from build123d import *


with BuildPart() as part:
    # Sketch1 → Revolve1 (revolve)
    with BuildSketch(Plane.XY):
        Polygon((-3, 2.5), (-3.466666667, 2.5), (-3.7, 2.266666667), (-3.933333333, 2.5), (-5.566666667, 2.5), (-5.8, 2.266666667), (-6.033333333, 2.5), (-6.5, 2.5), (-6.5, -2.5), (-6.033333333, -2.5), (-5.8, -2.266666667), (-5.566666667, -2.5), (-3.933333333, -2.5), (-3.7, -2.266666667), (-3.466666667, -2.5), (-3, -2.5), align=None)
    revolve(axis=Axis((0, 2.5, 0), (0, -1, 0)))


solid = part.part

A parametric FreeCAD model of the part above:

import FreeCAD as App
import Part
import Sketcher
from FreeCAD import Vector
Q = App.Units.Quantity


def add_polygon(sketch, points):
    """Adds a closed chain of lines whose ends are joined by coincident constraints."""
    first, n = sketch.GeometryCount, len(points)
    for a, b in zip(points, points[1:] + points[:1]):
        sketch.addGeometry(Part.LineSegment(App.Vector(*a, 0), App.Vector(*b, 0)), False)
    for i in range(n):
        sketch.addConstraint(Sketcher.Constraint("Coincident", first + i, 2, first + (i + 1) % n, 1))

doc = App.newDocument("Part")
body = doc.addObject("PartDesign::Body", "Body")

# Sketch on XY plane
sketch1 = doc.addObject("Sketcher::SketchObject", "Sketch")
body.addObject(sketch1)
sketch1.AttachmentSupport = (doc.XY_Plane, [""])
sketch1.MapMode = "FlatFace"
add_polygon(sketch1, [(-3, 2.5), (-3.47, 2.5), (-3.7, 2.27), (-3.93, 2.5), (-5.57, 2.5), (-5.8, 2.27), (-6.03, 2.5), (-6.5, 2.5), (-6.5, -2.5), (-6.03, -2.5), (-5.8, -2.27), (-5.57, -2.5), (-3.93, -2.5), (-3.7, -2.27), (-3.47, -2.5), (-3, -2.5)])  # lines 0-15
sketch1.addConstraint([
    Sketcher.Constraint("Horizontal", 0),
    Sketcher.Constraint("Horizontal", 3),
    Sketcher.Constraint("Horizontal", 6),
    Sketcher.Constraint("Vertical", 7),
    Sketcher.Constraint("Horizontal", 8),
    Sketcher.Constraint("Horizontal", 11),
    Sketcher.Constraint("Horizontal", 14),
    Sketcher.Constraint("Vertical", 15),
    Sketcher.Constraint("Symmetric", 5, 2, 8, 2, -1),
    Sketcher.Constraint("Symmetric", 4, 2, 9, 2, -1),
    Sketcher.Constraint("Symmetric", 3, 2, 10, 2, -1),
    Sketcher.Constraint("Symmetric", 1, 2, 12, 2, -1),
    Sketcher.Constraint("Symmetric", 0, 2, 13, 2, -1),
    Sketcher.Constraint("Perpendicular", 1, 2),
    Sketcher.Constraint("Perpendicular", 2, 4),
    Sketcher.Constraint("Perpendicular", 4, 5),
    Sketcher.Constraint("Perpendicular", 5, 9),
    Sketcher.Constraint("Perpendicular", 10, 12),
    Sketcher.Constraint("Horizontal", 0, 2, 2, 2),
    Sketcher.Constraint("Horizontal", 1, 2, 4, 2),
    Sketcher.Constraint("Horizontal", 3, 2, 5, 2),
    Sketcher.Constraint("Equal", 0, 6),
    Sketcher.Constraint("DistanceY", 7, 2, 7, 1, Q("5 mm")),
    Sketcher.Constraint("DistanceX", 14, 2, -1, 1, Q("3 mm")),
    Sketcher.Constraint("DistanceX", 1, 2, -1, 1, Q("3.7 mm")),
    Sketcher.Constraint("DistanceX", 4, 2, -1, 1, Q("5.8 mm")),
    Sketcher.Constraint("DistanceX", 0, 2, 0, 1, Q("0.466667 mm")),
])
revolution = doc.addObject("PartDesign::Revolution", "Revolution")
body.addObject(revolution)
revolution.Profile = sketch1
revolution.ReferenceAxis = (sketch1, ["V_Axis"])
revolution.Angle = 360

doc.recompute()
